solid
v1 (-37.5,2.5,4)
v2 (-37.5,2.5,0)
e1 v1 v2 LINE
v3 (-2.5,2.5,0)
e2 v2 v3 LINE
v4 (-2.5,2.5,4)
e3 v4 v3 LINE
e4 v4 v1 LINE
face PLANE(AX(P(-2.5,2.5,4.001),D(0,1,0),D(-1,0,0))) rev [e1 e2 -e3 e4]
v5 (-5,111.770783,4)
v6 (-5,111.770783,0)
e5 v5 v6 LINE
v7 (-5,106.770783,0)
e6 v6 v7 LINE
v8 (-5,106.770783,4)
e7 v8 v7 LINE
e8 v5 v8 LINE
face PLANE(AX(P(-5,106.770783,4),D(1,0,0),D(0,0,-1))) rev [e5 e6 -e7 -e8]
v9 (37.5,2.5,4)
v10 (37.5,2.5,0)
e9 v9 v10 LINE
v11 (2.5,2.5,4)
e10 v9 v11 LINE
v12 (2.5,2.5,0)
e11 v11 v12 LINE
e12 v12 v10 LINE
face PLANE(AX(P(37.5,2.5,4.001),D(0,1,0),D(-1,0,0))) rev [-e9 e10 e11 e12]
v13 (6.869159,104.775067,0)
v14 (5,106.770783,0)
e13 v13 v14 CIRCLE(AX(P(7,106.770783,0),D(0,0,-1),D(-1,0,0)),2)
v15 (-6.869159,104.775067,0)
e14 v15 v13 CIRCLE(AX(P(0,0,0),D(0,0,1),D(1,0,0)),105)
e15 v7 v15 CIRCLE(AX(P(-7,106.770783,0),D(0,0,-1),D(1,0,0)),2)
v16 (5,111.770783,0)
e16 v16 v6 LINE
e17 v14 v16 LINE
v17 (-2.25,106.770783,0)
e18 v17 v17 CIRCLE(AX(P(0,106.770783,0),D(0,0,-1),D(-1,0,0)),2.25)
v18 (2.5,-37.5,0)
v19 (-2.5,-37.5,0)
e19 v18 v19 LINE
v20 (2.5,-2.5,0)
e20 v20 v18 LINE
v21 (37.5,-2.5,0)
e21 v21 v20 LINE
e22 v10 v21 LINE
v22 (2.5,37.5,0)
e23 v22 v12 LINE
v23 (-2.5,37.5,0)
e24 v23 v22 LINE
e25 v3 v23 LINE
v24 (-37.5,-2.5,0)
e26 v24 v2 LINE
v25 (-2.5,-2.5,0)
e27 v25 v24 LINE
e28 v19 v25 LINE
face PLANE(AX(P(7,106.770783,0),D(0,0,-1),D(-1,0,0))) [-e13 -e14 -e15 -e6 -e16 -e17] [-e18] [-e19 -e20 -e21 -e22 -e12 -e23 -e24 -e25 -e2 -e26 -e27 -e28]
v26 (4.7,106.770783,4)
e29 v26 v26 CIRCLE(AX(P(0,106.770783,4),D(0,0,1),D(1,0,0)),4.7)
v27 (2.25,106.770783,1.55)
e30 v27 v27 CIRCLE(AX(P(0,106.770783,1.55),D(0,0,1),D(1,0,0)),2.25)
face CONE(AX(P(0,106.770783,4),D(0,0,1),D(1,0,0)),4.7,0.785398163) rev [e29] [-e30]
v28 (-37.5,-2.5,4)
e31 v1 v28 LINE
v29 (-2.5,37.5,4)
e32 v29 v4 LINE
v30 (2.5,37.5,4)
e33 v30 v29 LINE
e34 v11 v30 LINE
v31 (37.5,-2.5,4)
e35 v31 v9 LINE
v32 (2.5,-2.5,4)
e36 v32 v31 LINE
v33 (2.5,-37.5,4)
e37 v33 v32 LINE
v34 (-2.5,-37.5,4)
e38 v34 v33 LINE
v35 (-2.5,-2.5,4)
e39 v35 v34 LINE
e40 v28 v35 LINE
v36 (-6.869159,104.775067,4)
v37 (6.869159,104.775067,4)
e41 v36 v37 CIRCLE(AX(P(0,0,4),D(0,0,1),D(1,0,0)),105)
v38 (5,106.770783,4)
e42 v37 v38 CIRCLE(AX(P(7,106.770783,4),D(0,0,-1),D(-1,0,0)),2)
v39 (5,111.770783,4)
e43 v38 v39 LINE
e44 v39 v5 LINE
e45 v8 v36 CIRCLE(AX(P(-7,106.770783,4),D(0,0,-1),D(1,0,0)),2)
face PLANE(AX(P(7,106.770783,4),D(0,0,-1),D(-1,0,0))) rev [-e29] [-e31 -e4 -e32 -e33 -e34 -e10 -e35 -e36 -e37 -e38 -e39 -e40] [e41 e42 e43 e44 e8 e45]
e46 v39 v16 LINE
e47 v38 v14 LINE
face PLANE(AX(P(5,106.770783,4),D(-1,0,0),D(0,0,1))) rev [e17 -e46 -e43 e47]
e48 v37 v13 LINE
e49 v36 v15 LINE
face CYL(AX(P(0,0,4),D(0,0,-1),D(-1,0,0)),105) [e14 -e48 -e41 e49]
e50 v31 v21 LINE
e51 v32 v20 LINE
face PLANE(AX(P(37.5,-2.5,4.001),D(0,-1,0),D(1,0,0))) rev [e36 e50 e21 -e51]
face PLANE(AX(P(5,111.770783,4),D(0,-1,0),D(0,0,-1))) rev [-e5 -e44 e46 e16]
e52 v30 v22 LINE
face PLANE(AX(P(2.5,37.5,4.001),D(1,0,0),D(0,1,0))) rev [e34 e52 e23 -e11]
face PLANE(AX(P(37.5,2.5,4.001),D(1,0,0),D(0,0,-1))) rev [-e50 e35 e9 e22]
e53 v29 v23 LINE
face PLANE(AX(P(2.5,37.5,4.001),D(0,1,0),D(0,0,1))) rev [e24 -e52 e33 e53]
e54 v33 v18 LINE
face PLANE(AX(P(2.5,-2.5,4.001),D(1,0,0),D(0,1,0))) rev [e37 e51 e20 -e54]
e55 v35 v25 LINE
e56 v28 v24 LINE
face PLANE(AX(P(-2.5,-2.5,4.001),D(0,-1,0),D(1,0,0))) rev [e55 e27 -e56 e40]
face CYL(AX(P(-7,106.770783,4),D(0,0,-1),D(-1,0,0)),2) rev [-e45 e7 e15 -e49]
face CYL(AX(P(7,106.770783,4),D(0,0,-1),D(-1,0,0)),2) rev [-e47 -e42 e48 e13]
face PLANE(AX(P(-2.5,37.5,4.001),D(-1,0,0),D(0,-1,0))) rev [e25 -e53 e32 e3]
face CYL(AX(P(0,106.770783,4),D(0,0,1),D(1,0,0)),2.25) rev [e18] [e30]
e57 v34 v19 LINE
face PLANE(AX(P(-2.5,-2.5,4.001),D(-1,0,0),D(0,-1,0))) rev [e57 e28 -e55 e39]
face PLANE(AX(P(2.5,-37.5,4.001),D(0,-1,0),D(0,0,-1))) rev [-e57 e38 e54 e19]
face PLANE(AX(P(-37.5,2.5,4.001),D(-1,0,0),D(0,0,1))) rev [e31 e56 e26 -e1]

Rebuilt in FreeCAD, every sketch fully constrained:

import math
import FreeCAD as App
import Part
import Sketcher
Q = App.Units.Quantity

doc = App.newDocument("Part")
body = doc.addObject("PartDesign::Body", "Body")

sketch1 = body.newObject("Sketcher::SketchObject", "Sketch")
sketch1.AttachmentSupport = (doc.getObject("XY_Plane"), [""])
sketch1.MapMode = "FlatFace"
sketch1.addGeometry(Part.LineSegment(App.Vector(5, 106.770783, 0), App.Vector(5, 111.770783, 0)), False)
sketch1.addGeometry(Part.LineSegment(App.Vector(5, 111.770783, 0), App.Vector(-5, 111.770783, 0)), False)
sketch1.addGeometry(Part.LineSegment(App.Vector(-5, 111.770783, 0), App.Vector(-5, 106.770783, 0)), False)
sketch1.addGeometry(Part.ArcOfCircle(Part.Circle(App.Vector(-7, 106.770783, 0), App.Vector(0, 0, 1), 2), math.radians(-86.248999), math.radians(0)), False)
sketch1.addGeometry(Part.ArcOfCircle(Part.Circle(App.Vector(0, 0, 0), App.Vector(0, 0, 1), 105), math.radians(93.751001), math.radians(446.248999)), False)
sketch1.addGeometry(Part.ArcOfCircle(Part.Circle(App.Vector(7, 106.770783, 0), App.Vector(0, 0, 1), 2), math.radians(180), math.radians(266.248999)), False)
sketch1.addConstraint(Sketcher.Constraint("Coincident", 0, 2, 1, 1))
sketch1.addConstraint(Sketcher.Constraint("Coincident", 1, 2, 2, 1))
sketch1.addConstraint(Sketcher.Constraint("Tangent", 2, 2, 3, 2))
sketch1.addConstraint(Sketcher.Constraint("Tangent", 3, 1, 4, 1))
sketch1.addConstraint(Sketcher.Constraint("Tangent", 4, 2, 5, 2))
sketch1.addConstraint(Sketcher.Constraint("Tangent", 5, 1, 0, 1))
sketch1.addConstraint(Sketcher.Constraint("Vertical", 0))
sketch1.addConstraint(Sketcher.Constraint("Horizontal", 1))
sketch1.addConstraint(Sketcher.Constraint("Vertical", 2))
sketch1.addConstraint(Sketcher.Constraint("Coincident", 4, 3, -1, 1))
sketch1.addConstraint(Sketcher.Constraint("Equal", 3, 5))
sketch1.addConstraint(Sketcher.Constraint("Horizontal", 3, 3, 5, 3))
sketch1.addConstraint(Sketcher.Constraint("Radius", 3, 2.0))
sketch1.addConstraint(Sketcher.Constraint("Radius", 4, 105.0))
sketch1.addConstraint(Sketcher.Constraint("DistanceX", 1, 2, 1, 1, 10.0))
sketch1.addConstraint(Sketcher.Constraint("DistanceY", 0, 1, 0, 2, 5.0))
pad1 = body.newObject("PartDesign::Pad", "Pad")
pad1.Profile = sketch1
pad1.Length = 4

sketch2 = body.newObject("Sketcher::SketchObject", "Sketch001")
sketch2.AttachmentSupport = (doc.getObject("XY_Plane"), [""])
sketch2.MapMode = "FlatFace"
sketch2.addGeometry(Part.LineSegment(App.Vector(2.5, -2.5, 0), App.Vector(2.5, -37.5, 0)), False)
sketch2.addGeometry(Part.LineSegment(App.Vector(2.5, -37.5, 0), App.Vector(-2.5, -37.5, 0)), False)
sketch2.addGeometry(Part.LineSegment(App.Vector(-2.5, -37.5, 0), App.Vector(-2.5, -2.5, 0)), False)
sketch2.addGeometry(Part.LineSegment(App.Vector(-2.5, -2.5, 0), App.Vector(-37.5, -2.5, 0)), False)
sketch2.addGeometry(Part.LineSegment(App.Vector(-37.5, -2.5, 0), App.Vector(-37.5, 2.5, 0)), False)
sketch2.addGeometry(Part.LineSegment(App.Vector(-37.5, 2.5, 0), App.Vector(-2.5, 2.5, 0)), False)
sketch2.addGeometry(Part.LineSegment(App.Vector(-2.5, 2.5, 0), App.Vector(-2.5, 37.5, 0)), False)
sketch2.addGeometry(Part.LineSegment(App.Vector(-2.5, 37.5, 0), App.Vector(2.5, 37.5, 0)), False)
sketch2.addGeometry(Part.LineSegment(App.Vector(2.5, 37.5, 0), App.Vector(2.5, 2.5, 0)), False)
sketch2.addGeometry(Part.LineSegment(App.Vector(2.5, 2.5, 0), App.Vector(37.5, 2.5, 0)), False)
sketch2.addGeometry(Part.LineSegment(App.Vector(37.5, 2.5, 0), App.Vector(37.5, -2.5, 0)), False)
sketch2.addGeometry(Part.LineSegment(App.Vector(37.5, -2.5, 0), App.Vector(2.5, -2.5, 0)), False)
sketch2.addConstraint(Sketcher.Constraint("Coincident", 0, 2, 1, 1))
sketch2.addConstraint(Sketcher.Constraint("Coincident", 1, 2, 2, 1))
sketch2.addConstraint(Sketcher.Constraint("Coincident", 2, 2, 3, 1))
sketch2.addConstraint(Sketcher.Constraint("Coincident", 3, 2, 4, 1))
sketch2.addConstraint(Sketcher.Constraint("Coincident", 4, 2, 5, 1))
sketch2.addConstraint(Sketcher.Constraint("Coincident", 5, 2, 6, 1))
sketch2.addConstraint(Sketcher.Constraint("Coincident", 6, 2, 7, 1))
sketch2.addConstraint(Sketcher.Constraint("Coincident", 7, 2, 8, 1))
sketch2.addConstraint(Sketcher.Constraint("Coincident", 8, 2, 9, 1))
sketch2.addConstraint(Sketcher.Constraint("Coincident", 9, 2, 10, 1))
sketch2.addConstraint(Sketcher.Constraint("Coincident", 10, 2, 11, 1))
sketch2.addConstraint(Sketcher.Constraint("Coincident", 11, 2, 0, 1))
sketch2.addConstraint(Sketcher.Constraint("Vertical", 0))
sketch2.addConstraint(Sketcher.Constraint("Horizontal", 1))
sketch2.addConstraint(Sketcher.Constraint("Vertical", 2))
sketch2.addConstraint(Sketcher.Constraint("Horizontal", 3))
sketch2.addConstraint(Sketcher.Constraint("Vertical", 4))
sketch2.addConstraint(Sketcher.Constraint("Horizontal", 5))
sketch2.addConstraint(Sketcher.Constraint("Vertical", 6))
sketch2.addConstraint(Sketcher.Constraint("Horizontal", 7))
sketch2.addConstraint(Sketcher.Constraint("Vertical", 8))
sketch2.addConstraint(Sketcher.Constraint("Horizontal", 9))
sketch2.addConstraint(Sketcher.Constraint("Vertical", 10))
sketch2.addConstraint(Sketcher.Constraint("Horizontal", 11))
sketch2.addConstraint(Sketcher.Constraint("Symmetric", 0, 2, 6, 2, -1, 1))
sketch2.addConstraint(Sketcher.Constraint("Symmetric", 2, 2, 8, 2, -1, 1))
sketch2.addConstraint(Sketcher.Constraint("Symmetric", 4, 2, 10, 2, -1, 1))
sketch2.addConstraint(Sketcher.Constraint("Symmetric", 5, 2, 8, 2, -2))
sketch2.addConstraint(Sketcher.Constraint("Equal", 11, 0))
sketch2.addConstraint(Sketcher.Constraint("Equal", 7, 4))
sketch2.addConstraint(Sketcher.Constraint("DistanceX", 1, 2, 1, 1, 5.0))
sketch2.addConstraint(Sketcher.Constraint("DistanceX", 3, 2, 3, 1, 35.0))
pocket1 = body.newObject("PartDesign::Pocket", "Pocket")
pocket1.Profile = sketch2
pocket1.Type = "UpToFirst"
pocket1.Reversed = True

sketch3 = body.newObject("Sketcher::SketchObject", "Sketch002")
sketch3.AttachmentSupport = (doc.getObject("YZ_Plane"), [""])
sketch3.MapMode = "FlatFace"
sketch3.addGeometry(Part.LineSegment(App.Vector(106.770783, 0, 0), App.Vector(106.770783, 4, 0)), False)
sketch3.addGeometry(Part.LineSegment(App.Vector(106.770783, 4, 0), App.Vector(102.070783, 4, 0)), False)
sketch3.addGeometry(Part.LineSegment(App.Vector(102.070783, 4, 0), App.Vector(104.520783, 1.55, 0)), False)
sketch3.addGeometry(Part.LineSegment(App.Vector(104.520783, 1.55, 0), App.Vector(104.520783, 0, 0)), False)
sketch3.addGeometry(Part.LineSegment(App.Vector(104.520783, 0, 0), App.Vector(106.770783, 0, 0)), False)
sketch3.addGeometry(Part.LineSegment(App.Vector(106.770783, 4, 0), App.Vector(106.770783, 0, 0)), True)
sketch3.addConstraint(Sketcher.Constraint("Coincident", 0, 2, 1, 1))
sketch3.addConstraint(Sketcher.Constraint("Coincident", 1, 2, 2, 1))
sketch3.addConstraint(Sketcher.Constraint("Coincident", 2, 2, 3, 1))
sketch3.addConstraint(Sketcher.Constraint("Coincident", 3, 2, 4, 1))
sketch3.addConstraint(Sketcher.Constraint("Coincident", 4, 2, 0, 1))
sketch3.addConstraint(Sketcher.Constraint("Vertical", 0))
sketch3.addConstraint(Sketcher.Constraint("Horizontal", 1))
sketch3.addConstraint(Sketcher.Constraint("Vertical", 3))
sketch3.addConstraint(Sketcher.Constraint("Horizontal", 4))
sketch3.addConstraint(Sketcher.Constraint("Vertical", 5))
sketch3.addConstraint(Sketcher.Constraint("Coincident", 5, 1, 0, 2))
sketch3.addConstraint(Sketcher.Constraint("PointOnObject", 3, 2, -1))
sketch3.addConstraint(Sketcher.Constraint("PointOnObject", 5, 2, -1))
sketch3.addConstraint(Sketcher.Constraint("DistanceY", 0, 1, 0, 2, 4.0))
sketch3.addConstraint(Sketcher.Constraint("Angle", 2, Q("-45 deg")))
sketch3.addConstraint(Sketcher.Constraint("DistanceX", 1, 2, 1, 1, 4.7))
sketch3.addConstraint(Sketcher.Constraint("DistanceX", 4, 1, 4, 2, 2.25))
sketch3.addConstraint(Sketcher.Constraint("DistanceX", -1, 1, 0, 2, 106.770783))
groove = body.newObject("PartDesign::Groove", "Groove")
groove.Profile = sketch3
groove.ReferenceAxis = (sketch3, ["Axis0"])
groove.Angle = 360

doc.recompute()
